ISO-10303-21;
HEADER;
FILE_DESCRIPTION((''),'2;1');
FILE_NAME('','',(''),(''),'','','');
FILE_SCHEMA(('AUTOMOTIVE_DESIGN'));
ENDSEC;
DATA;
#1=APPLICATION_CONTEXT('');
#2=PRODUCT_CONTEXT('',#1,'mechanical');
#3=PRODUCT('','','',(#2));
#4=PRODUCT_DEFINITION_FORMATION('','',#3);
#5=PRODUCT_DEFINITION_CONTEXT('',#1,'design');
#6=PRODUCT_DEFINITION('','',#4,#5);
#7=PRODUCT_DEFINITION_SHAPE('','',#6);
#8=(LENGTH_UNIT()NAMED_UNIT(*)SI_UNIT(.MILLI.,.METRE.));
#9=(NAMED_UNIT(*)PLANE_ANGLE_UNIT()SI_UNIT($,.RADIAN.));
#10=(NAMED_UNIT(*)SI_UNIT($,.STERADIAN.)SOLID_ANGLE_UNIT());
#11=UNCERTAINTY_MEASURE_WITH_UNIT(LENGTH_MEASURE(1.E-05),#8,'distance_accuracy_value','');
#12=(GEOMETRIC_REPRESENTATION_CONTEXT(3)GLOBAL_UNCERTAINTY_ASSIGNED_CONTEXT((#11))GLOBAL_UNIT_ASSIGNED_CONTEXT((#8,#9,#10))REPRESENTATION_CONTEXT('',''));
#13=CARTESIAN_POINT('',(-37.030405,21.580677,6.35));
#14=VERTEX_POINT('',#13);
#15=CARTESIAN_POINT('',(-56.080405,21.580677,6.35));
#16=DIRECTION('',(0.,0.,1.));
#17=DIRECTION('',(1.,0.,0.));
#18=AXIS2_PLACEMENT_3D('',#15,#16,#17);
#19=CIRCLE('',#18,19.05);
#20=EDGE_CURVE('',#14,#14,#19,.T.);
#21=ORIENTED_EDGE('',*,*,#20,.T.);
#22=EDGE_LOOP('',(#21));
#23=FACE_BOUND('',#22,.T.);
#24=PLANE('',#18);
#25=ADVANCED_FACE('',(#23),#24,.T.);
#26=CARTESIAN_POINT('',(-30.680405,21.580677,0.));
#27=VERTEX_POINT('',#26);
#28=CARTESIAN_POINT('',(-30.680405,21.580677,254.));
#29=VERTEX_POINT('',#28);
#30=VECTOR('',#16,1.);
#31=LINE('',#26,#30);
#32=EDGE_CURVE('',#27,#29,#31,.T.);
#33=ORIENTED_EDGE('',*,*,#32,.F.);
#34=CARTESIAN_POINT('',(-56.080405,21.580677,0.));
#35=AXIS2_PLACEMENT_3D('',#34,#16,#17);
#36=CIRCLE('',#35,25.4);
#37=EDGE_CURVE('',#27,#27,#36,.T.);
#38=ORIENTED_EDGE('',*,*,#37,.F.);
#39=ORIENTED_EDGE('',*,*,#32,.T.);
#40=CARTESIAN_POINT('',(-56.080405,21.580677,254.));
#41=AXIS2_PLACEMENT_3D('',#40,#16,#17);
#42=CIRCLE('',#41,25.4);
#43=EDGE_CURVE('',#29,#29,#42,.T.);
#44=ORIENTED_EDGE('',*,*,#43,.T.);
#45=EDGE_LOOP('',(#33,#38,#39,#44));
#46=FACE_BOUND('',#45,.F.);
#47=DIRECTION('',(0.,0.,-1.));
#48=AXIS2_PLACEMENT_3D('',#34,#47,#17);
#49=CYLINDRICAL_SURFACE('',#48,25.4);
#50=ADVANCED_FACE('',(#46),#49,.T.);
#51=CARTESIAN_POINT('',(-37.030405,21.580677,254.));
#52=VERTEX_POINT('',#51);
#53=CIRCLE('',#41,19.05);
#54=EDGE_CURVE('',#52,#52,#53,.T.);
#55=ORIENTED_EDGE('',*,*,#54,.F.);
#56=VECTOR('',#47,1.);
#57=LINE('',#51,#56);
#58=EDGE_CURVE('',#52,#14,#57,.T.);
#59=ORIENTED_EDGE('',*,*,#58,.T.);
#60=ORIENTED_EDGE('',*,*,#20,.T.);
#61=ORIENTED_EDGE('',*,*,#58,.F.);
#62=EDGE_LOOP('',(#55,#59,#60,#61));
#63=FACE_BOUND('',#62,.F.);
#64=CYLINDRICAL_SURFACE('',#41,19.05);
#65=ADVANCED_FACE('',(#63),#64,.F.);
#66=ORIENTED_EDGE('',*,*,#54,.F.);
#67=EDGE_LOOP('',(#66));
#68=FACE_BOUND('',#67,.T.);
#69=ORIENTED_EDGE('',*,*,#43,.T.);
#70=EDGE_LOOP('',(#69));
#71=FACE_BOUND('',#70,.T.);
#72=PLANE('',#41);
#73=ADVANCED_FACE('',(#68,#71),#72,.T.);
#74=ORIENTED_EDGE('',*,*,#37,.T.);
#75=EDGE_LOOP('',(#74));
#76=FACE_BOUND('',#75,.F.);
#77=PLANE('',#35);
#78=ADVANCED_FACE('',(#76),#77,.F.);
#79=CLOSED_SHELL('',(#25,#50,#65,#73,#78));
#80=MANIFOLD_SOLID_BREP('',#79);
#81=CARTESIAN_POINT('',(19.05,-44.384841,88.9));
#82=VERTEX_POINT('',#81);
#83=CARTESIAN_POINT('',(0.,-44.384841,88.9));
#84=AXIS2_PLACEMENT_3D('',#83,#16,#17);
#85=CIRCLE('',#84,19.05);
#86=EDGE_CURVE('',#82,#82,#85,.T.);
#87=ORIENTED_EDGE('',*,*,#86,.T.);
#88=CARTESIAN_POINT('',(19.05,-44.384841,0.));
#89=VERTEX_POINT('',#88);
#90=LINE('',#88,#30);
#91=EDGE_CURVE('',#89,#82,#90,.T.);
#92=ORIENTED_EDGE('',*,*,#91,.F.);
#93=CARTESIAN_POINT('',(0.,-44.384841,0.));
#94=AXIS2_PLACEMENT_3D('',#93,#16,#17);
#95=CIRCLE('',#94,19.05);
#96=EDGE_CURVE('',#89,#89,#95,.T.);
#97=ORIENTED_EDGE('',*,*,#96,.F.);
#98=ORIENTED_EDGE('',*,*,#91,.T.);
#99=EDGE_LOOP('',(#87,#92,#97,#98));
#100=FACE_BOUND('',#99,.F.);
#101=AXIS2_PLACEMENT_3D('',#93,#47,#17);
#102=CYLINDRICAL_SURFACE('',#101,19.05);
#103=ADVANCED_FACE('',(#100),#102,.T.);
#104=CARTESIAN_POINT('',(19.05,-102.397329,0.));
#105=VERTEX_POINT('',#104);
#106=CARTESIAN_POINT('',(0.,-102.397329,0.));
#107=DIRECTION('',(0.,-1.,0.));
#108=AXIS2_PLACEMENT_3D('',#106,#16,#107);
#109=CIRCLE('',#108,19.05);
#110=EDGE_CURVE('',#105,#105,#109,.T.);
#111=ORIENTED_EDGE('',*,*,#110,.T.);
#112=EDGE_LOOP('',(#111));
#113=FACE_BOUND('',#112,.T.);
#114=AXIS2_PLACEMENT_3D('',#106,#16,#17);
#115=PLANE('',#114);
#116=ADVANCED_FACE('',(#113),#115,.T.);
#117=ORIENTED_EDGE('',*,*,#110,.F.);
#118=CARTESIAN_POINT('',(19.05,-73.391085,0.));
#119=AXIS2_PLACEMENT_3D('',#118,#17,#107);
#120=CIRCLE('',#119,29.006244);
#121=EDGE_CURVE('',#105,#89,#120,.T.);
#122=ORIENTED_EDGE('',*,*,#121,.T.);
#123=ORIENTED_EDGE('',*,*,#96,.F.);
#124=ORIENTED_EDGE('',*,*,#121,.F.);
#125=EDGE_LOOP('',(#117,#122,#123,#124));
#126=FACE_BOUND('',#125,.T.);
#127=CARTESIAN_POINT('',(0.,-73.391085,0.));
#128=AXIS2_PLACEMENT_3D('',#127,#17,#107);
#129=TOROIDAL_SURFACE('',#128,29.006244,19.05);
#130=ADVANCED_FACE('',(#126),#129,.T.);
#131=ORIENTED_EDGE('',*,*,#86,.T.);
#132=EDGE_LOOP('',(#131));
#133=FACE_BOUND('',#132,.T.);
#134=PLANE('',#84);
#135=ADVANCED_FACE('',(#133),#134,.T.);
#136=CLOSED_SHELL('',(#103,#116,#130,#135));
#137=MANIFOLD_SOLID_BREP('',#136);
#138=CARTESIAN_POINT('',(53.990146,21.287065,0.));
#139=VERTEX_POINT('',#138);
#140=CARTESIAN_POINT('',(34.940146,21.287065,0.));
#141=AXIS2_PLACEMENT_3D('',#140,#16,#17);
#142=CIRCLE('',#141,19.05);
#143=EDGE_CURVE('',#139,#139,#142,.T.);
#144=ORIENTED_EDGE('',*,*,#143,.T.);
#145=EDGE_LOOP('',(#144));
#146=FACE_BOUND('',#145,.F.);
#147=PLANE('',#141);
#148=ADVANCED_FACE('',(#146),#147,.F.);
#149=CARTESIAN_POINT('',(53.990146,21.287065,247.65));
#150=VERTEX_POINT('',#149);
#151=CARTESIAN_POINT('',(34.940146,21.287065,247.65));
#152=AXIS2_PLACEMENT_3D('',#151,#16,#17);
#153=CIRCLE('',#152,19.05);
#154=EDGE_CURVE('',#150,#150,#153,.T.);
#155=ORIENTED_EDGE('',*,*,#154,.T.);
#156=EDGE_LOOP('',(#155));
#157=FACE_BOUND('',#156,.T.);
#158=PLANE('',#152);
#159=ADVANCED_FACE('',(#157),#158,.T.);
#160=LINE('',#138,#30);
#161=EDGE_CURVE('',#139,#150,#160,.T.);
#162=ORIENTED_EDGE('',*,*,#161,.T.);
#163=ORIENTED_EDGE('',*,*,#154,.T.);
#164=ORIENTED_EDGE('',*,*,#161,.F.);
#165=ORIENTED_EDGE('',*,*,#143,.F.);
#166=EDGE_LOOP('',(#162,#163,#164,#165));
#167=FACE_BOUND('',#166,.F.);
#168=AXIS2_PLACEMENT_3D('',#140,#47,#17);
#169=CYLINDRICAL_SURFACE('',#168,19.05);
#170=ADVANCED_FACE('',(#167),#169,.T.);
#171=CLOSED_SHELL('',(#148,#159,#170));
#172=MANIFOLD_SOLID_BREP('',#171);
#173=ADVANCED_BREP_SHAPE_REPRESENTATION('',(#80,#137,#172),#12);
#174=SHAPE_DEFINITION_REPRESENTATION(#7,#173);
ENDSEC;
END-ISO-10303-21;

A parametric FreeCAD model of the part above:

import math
import FreeCAD as App
import Part
import Sketcher
from FreeCAD import Vector
Q = App.Units.Quantity

doc = App.newDocument("Part")
body = doc.addObject("PartDesign::Body", "Body")

sketch1 = body.newObject("Sketcher::SketchObject", "Sketch")
sketch1.AttachmentSupport = (doc.getObject("XY_Plane"), [""])
sketch1.MapMode = "FlatFace"
sketch1.addGeometry(Part.Circle(Vector(-56, 22, 0), Vector(0, 0, 1), 25), False)
sketch1.addConstraint([
    Sketcher.Constraint("Diameter", 0, Q("2 in")),
    Sketcher.Constraint("DistanceX", 0, 3, -1, 1, 56.080405),
    Sketcher.Constraint("DistanceY", -1, 1, 0, 3, 21.580677),
])
pad1 = body.newObject("PartDesign::Pad", "Pad")
pad1.Profile = sketch1
pad1.Length = Q("10 in")

sketch2 = body.newObject("Sketcher::SketchObject", "Sketch001")
sketch2.AttachmentSupport = (doc.getObject("XY_Plane"), [""])
sketch2.MapMode = "FlatFace"
sketch2.AttachmentOffset = App.Placement(Vector(0, 0, 10 * 25.4), App.Rotation())
sketch2.addGeometry(Part.Circle(Vector(-56, 22, 0), Vector(0, 0, 1), 19), False)
sketch2.addConstraint([
    Sketcher.Constraint("Diameter", 0, Q("1.5 in")),
    Sketcher.Constraint("DistanceX", 0, 3, -1, 1, 56.080405),
    Sketcher.Constraint("DistanceY", -1, 1, 0, 3, 21.580677),
])
pocket1 = body.newObject("PartDesign::Pocket", "Pocket")
pocket1.Profile = sketch2
pocket1.Length = Q("9.75 in")
body2 = doc.addObject("PartDesign::Body", "Body001")

sketch3 = body2.newObject("Sketcher::SketchObject", "Sketch002")
sketch3.AttachmentSupport = (doc.getObject("XY_Plane001"), [""])
sketch3.MapMode = "FlatFace"
sketch3.addGeometry(Part.Circle(Vector(35, 21, 0), Vector(0, 0, 1), 19), False)
sketch3.addConstraint([
    Sketcher.Constraint("Diameter", 0, Q("1.5 in")),
    Sketcher.Constraint("DistanceX", -1, 1, 0, 3, 34.940146),
    Sketcher.Constraint("DistanceY", -1, 1, 0, 3, 21.287065),
])
pad2 = body2.newObject("PartDesign::Pad", "Pad001")
pad2.Profile = sketch3
pad2.Length = Q("9.75 in")
body3 = doc.addObject("PartDesign::Body", "Body002")

sketch4 = body3.newObject("Sketcher::SketchObject", "Sketch003")
sketch4.AttachmentSupport = (doc.getObject("XY_Plane002"), [""])
sketch4.MapMode = "FlatFace"
sketch4.addGeometry(Part.Circle(Vector(0, -44, 0), Vector(0, 0, 1), 19), False)
sketch4.addConstraint([
    Sketcher.Constraint("PointOnObject", 0, 3, -2),
    Sketcher.Constraint("Diameter", 0, Q("1.5 in")),
    Sketcher.Constraint("DistanceY", 0, 3, -1, 1, 44.384841),
])
pad3 = body3.newObject("PartDesign::Pad", "Pad002")
pad3.Profile = sketch4
pad3.Length = Q("3.5 in")

sketch5 = body3.newObject("Sketcher::SketchObject", "Sketch004")
sketch5.AttachmentSupport = (doc.getObject("XY_Plane002"), [""])
sketch5.MapMode = "FlatFace"
sketch5.addGeometry(Part.Circle(Vector(0, -102, 0), Vector(0, 0, 1), 19), False)
sketch5.addConstraint([
    Sketcher.Constraint("PointOnObject", 0, 3, -2),
    Sketcher.Constraint("Diameter", 0, Q("1.5 in")),
    Sketcher.Constraint("DistanceY", 0, 3, -1, 1, 102.397329),
])

sketch6 = body3.newObject("Sketcher::SketchObject", "Sketch005")
sketch6.AttachmentSupport = (doc.getObject("YZ_Plane002"), [""])
sketch6.MapMode = "FlatFace"
sketch6.addGeometry(Part.ArcOfCircle(Part.Circle(Vector(-73, 0, 0), Vector(0, 0, 1), 29), math.radians(180), math.radians(360)), False)
sketch6.addConstraint([
    Sketcher.Constraint("PointOnObject", 0, 3, -1),
    Sketcher.Constraint("PointOnObject", 0, 1, -1),
    Sketcher.Constraint("PointOnObject", 0, 2, -1),
    Sketcher.Constraint("Radius", 0, 29.006244),
    Sketcher.Constraint("DistanceX", 0, 1, -1, 1, 102.397329),
])
doc.recompute()

additivepipe = body3.newObject("PartDesign::AdditivePipe", "AdditivePipe")
additivepipe.Profile = sketch5
additivepipe.Spine = (sketch6, ["Edge1"])

doc.recompute()
